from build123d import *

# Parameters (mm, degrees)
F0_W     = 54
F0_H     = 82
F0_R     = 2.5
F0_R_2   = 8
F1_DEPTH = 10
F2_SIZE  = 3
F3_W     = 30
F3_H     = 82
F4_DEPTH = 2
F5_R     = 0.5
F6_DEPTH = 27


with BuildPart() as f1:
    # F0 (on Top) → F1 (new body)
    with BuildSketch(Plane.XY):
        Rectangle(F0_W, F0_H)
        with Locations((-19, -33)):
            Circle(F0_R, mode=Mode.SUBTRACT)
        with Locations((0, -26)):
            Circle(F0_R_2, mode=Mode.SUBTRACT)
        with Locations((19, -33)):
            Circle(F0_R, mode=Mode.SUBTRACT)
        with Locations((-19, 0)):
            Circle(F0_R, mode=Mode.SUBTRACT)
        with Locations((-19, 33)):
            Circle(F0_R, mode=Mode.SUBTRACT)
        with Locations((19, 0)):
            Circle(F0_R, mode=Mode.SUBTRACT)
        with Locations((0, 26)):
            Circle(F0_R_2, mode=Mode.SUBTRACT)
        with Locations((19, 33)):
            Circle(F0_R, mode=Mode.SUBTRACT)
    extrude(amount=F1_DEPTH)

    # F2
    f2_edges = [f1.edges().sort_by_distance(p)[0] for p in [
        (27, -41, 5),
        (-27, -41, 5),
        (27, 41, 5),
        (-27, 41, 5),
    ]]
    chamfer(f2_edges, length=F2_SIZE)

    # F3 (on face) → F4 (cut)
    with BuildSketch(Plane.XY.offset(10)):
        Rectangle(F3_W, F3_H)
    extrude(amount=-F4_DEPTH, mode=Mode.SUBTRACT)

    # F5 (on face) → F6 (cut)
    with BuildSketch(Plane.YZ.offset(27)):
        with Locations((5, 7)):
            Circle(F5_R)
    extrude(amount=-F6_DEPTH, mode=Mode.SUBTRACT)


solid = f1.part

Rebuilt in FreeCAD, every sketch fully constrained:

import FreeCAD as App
import Part
import Sketcher
Q = App.Units.Quantity


def edges_at(feature, points):
    """Names of the edges that pass closest to the given points."""
    edges = feature.Shape.Edges
    near = lambda p: min(range(len(edges)), key=lambda i: edges[i].distToShape(Part.Vertex(*p))[0])
    return sorted({f"Edge{near(p) + 1}" for p in points})


def add_polygon(sketch, points):
    """Adds a closed chain of lines whose ends are joined by coincident constraints."""
    first, n = sketch.GeometryCount, len(points)
    for a, b in zip(points, points[1:] + points[:1]):
        sketch.addGeometry(Part.LineSegment(App.Vector(*a, 0), App.Vector(*b, 0)), False)
    for i in range(n):
        sketch.addConstraint(Sketcher.Constraint("Coincident", first + i, 2, first + (i + 1) % n, 1))

doc = App.newDocument("Part")
body = doc.addObject("PartDesign::Body", "Body")

# Sketch on XY plane
sketch1 = body.newObject("Sketcher::SketchObject", "Sketch")
sketch1.AttachmentSupport = (doc.getObject("XY_Plane"), [""])
sketch1.MapMode = "FlatFace"
add_polygon(sketch1, [(-27, 41), (-27, -41), (27, -41), (27, 41)])  # lines 0-3
sketch1.addGeometry(Part.Circle(App.Vector(-19, -33, 0), App.Vector(0, 0, 1), 2.5), False)  # 4
sketch1.addGeometry(Part.Circle(App.Vector(0, -26, 0), App.Vector(0, 0, 1), 8), False)  # 5
sketch1.addGeometry(Part.Circle(App.Vector(19, -33, 0), App.Vector(0, 0, 1), 2.5), False)  # 6
sketch1.addGeometry(Part.Circle(App.Vector(-19, 0, 0), App.Vector(0, 0, 1), 2.5), False)  # 7
sketch1.addGeometry(Part.Circle(App.Vector(-19, 33, 0), App.Vector(0, 0, 1), 2.5), False)  # 8
sketch1.addGeometry(Part.Circle(App.Vector(19, 0, 0), App.Vector(0, 0, 1), 2.5), False)  # 9
sketch1.addGeometry(Part.Circle(App.Vector(0, 26, 0), App.Vector(0, 0, 1), 8), False)  # 10
sketch1.addGeometry(Part.Circle(App.Vector(19, 33, 0), App.Vector(0, 0, 1), 2.5), False)  # 11
sketch1.addConstraint(Sketcher.Constraint("Vertical", 0))
sketch1.addConstraint(Sketcher.Constraint("Horizontal", 1))
sketch1.addConstraint(Sketcher.Constraint("Vertical", 2))
sketch1.addConstraint(Sketcher.Constraint("Horizontal", 3))
sketch1.addConstraint(Sketcher.Constraint("Equal", 4, 6))
sketch1.addConstraint(Sketcher.Constraint("Equal", 6, 7))
sketch1.addConstraint(Sketcher.Constraint("Equal", 7, 8))
sketch1.addConstraint(Sketcher.Constraint("Equal", 8, 9))
sketch1.addConstraint(Sketcher.Constraint("Equal", 5, 10))
sketch1.addConstraint(Sketcher.Constraint("Equal", 9, 11))
sketch1.addConstraint(Sketcher.Constraint("Symmetric", 6, 3, 8, 3, -1, 1))
sketch1.addConstraint(Sketcher.Constraint("Symmetric", 7, 3, 9, 3, -1, 1))
sketch1.addConstraint(Sketcher.Constraint("Symmetric", 5, 3, 10, 3, -1, 1))
sketch1.addConstraint(Sketcher.Constraint("Symmetric", 4, 3, 11, 3, -1, 1))
sketch1.addConstraint(Sketcher.Constraint("Symmetric", 0, 2, 2, 2, -1, 1))
sketch1.addConstraint(Sketcher.Constraint("Symmetric", 4, 3, 6, 3, -2))
sketch1.addConstraint(Sketcher.Constraint("PointOnObject", 5, 3, -2))
sketch1.addConstraint(Sketcher.Constraint("PointOnObject", 7, 3, -1))
sketch1.addConstraint(Sketcher.Constraint("Vertical", 4, 3, 7, 3))
sketch1.addConstraint(Sketcher.Constraint("Diameter", 4, Q("5 mm")))
sketch1.addConstraint(Sketcher.Constraint("Diameter", 5, Q("16 mm")))
sketch1.addConstraint(Sketcher.Constraint("DistanceX", 1, 1, 1, 2, Q("54 mm")))
sketch1.addConstraint(Sketcher.Constraint("DistanceY", 0, 2, 0, 1, Q("82 mm")))
sketch1.addConstraint(Sketcher.Constraint("DistanceX", 4, 3, -1, 1, Q("19 mm")))
sketch1.addConstraint(Sketcher.Constraint("DistanceY", 4, 3, -1, 1, Q("33 mm")))
sketch1.addConstraint(Sketcher.Constraint("DistanceY", 5, 3, -1, 1, Q("26 mm")))
pad1 = body.newObject("PartDesign::Pad", "Pad")
pad1.Profile = sketch1
pad1.Length = 10
doc.recompute()

chamfer = body.newObject("PartDesign::Chamfer", "Chamfer")
chamfer.Base = (pad1, edges_at(pad1, [
    (27, -41, 5),
    (-27, -41, 5),
    (27, 41, 5),
    (-27, 41, 5),
]))
chamfer.Size = 3

# Sketch on XY plane
sketch2 = body.newObject("Sketcher::SketchObject", "Sketch001")
sketch2.AttachmentSupport = (doc.getObject("XY_Plane"), [""])
sketch2.MapMode = "FlatFace"
sketch2.AttachmentOffset = App.Placement(App.Vector(0, 0, 10), App.Rotation())
add_polygon(sketch2, [(-15, 41), (-15, -41), (15, -41), (15, 41)])  # lines 0-3
sketch2.addConstraint(Sketcher.Constraint("Vertical", 0))
sketch2.addConstraint(Sketcher.Constraint("Horizontal", 1))
sketch2.addConstraint(Sketcher.Constraint("Vertical", 2))
sketch2.addConstraint(Sketcher.Constraint("Horizontal", 3))
sketch2.addConstraint(Sketcher.Constraint("Symmetric", 0, 2, 2, 2, -1, 1))
sketch2.addConstraint(Sketcher.Constraint("DistanceX", 1, 1, 1, 2, Q("30 mm")))
sketch2.addConstraint(Sketcher.Constraint("DistanceY", 0, 2, 0, 1, Q("82 mm")))
pocket1 = body.newObject("PartDesign::Pocket", "Pocket")
pocket1.Profile = sketch2
pocket1.Length = 2

# Sketch on YZ plane
sketch3 = body.newObject("Sketcher::SketchObject", "Sketch002")
sketch3.AttachmentSupport = (doc.getObject("YZ_Plane"), [""])
sketch3.MapMode = "FlatFace"
sketch3.AttachmentOffset = App.Placement(App.Vector(0, 0, 27), App.Rotation())
sketch3.addGeometry(Part.Circle(App.Vector(5, 7, 0), App.Vector(0, 0, 1), 0.5), False)
sketch3.addConstraint(Sketcher.Constraint("Diameter", 0, Q("1 mm")))
sketch3.addConstraint(Sketcher.Constraint("DistanceX", -1, 1, 0, 3, Q("5 mm")))
sketch3.addConstraint(Sketcher.Constraint("DistanceY", -1, 1, 0, 3, Q("7 mm")))
pocket2 = body.newObject("PartDesign::Pocket", "Pocket001")
pocket2.Profile = sketch3
pocket2.Length = 27

doc.recompute()
